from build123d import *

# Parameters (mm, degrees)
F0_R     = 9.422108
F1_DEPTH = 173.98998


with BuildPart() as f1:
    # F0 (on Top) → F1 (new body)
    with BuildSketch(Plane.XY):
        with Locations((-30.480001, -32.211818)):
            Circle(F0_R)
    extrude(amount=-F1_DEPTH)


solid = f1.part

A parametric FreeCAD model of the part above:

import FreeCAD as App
import Part
import Sketcher
from FreeCAD import Vector
Q = App.Units.Quantity

doc = App.newDocument("Part")
params = doc.addObject("Spreadsheet::Sheet", "Params")
for row, (alias, value) in enumerate([
    ("pad1_length", "173.98998 mm"),
], start=1):
    params.set(f"A{row}", alias)
    params.set(f"B{row}", "=" + value)
    params.setAlias(f"B{row}", alias)

body = doc.addObject("PartDesign::Body", "Body")

# Sketch on XY plane
sketch1 = body.newObject("Sketcher::SketchObject", "Sketch")
sketch1.AttachmentSupport = (doc.getObject("XY_Plane"), [""])
sketch1.MapMode = "FlatFace"
sketch1.addGeometry(Part.Circle(Vector(-30.480001, -32.211818, 0), Vector(0, 0, 1), 9.422108), False)
sketch1.addConstraint(Sketcher.Constraint("DistanceX", 0, 3, -1, 1, Q("30.480001 mm")))
sketch1.addConstraint(Sketcher.Constraint("Diameter", 0, Q("18.844216 mm")))
sketch1.addConstraint(Sketcher.Constraint("DistanceY", 0, 3, -1, 1, Q("32.211818 mm")))
pad1 = body.newObject("PartDesign::Pad", "Pad")
pad1.Profile = sketch1
pad1.setExpression("Length", "Params.pad1_length")
pad1.Reversed = True

doc.recompute()
